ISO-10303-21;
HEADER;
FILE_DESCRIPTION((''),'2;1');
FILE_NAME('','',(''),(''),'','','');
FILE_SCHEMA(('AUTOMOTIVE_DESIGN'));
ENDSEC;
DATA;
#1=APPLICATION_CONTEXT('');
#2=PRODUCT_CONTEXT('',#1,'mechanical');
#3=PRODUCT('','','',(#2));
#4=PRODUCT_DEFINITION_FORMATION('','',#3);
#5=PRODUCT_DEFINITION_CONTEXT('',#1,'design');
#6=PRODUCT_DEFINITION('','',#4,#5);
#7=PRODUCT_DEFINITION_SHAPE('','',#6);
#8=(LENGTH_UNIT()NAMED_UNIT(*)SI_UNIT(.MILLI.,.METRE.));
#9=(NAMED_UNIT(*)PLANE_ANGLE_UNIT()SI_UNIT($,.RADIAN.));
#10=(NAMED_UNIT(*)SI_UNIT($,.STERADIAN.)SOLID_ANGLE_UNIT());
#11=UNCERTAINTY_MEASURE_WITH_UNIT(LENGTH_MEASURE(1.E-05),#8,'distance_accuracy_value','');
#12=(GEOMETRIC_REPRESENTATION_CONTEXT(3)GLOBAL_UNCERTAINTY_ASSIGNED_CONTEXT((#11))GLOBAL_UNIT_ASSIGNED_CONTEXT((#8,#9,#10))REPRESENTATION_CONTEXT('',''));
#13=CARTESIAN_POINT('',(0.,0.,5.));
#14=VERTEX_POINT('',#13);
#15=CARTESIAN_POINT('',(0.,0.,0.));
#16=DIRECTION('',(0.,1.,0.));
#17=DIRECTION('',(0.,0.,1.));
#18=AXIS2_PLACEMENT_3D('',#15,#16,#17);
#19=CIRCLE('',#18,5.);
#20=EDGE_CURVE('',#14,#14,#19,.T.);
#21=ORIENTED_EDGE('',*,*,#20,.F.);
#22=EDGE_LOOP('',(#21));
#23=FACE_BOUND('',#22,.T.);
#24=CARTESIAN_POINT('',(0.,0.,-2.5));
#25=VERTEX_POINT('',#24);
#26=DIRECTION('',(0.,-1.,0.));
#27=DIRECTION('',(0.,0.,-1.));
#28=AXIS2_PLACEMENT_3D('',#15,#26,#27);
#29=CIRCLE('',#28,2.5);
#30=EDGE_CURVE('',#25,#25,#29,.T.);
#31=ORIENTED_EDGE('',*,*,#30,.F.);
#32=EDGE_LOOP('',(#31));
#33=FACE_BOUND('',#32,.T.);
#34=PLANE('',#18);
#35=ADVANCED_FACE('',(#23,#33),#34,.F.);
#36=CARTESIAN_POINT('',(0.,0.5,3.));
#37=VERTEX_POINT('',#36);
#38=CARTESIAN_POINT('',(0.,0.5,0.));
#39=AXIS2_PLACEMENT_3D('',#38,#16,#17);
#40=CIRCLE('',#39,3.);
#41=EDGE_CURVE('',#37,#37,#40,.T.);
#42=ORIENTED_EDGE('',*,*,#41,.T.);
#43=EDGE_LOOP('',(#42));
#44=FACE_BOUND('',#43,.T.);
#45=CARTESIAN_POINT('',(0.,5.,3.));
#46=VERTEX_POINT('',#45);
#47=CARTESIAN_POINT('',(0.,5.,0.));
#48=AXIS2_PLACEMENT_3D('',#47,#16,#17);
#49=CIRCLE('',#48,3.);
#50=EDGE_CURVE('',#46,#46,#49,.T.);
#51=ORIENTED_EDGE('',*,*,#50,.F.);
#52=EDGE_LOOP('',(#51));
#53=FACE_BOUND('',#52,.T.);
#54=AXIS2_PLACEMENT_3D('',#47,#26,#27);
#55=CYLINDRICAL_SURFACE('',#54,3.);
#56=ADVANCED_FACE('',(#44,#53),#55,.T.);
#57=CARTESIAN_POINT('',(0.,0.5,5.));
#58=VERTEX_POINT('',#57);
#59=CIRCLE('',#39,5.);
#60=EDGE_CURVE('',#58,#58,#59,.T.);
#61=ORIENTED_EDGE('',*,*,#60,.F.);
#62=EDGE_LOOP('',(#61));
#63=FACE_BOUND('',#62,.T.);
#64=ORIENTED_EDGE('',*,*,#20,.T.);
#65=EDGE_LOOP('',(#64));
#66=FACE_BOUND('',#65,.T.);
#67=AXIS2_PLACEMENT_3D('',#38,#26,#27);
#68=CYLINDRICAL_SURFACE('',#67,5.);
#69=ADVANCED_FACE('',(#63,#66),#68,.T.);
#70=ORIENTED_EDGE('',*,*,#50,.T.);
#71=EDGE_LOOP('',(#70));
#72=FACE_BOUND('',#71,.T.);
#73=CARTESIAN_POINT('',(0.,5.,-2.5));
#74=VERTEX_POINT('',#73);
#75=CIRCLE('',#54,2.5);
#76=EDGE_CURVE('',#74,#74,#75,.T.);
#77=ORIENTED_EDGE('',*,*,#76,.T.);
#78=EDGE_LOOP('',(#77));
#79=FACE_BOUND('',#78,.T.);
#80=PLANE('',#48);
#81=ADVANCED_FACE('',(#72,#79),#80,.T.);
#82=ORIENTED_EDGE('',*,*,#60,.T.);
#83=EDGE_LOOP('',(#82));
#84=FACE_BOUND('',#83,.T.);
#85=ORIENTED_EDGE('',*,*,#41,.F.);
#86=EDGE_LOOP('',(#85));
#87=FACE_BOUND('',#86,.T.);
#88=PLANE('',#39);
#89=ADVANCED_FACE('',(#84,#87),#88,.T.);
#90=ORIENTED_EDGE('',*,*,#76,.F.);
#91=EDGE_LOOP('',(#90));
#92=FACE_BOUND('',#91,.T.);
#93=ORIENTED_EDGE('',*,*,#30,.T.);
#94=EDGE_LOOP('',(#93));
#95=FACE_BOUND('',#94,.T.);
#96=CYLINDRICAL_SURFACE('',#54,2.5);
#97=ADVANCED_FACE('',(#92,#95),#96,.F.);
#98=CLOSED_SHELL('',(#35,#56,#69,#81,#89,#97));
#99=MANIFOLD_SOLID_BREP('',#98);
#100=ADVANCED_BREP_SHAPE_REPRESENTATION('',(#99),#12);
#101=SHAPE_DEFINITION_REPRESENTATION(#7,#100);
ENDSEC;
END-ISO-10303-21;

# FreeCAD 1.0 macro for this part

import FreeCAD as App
import Part
import Sketcher

V = App.Vector
Q = App.Units.Quantity

doc = App.newDocument("Part")
body = doc.addObject("PartDesign::Body", "Body")

# Sketch on XZ plane
sketch1 = body.newObject("Sketcher::SketchObject", "Sketch")
sketch1.AttachmentSupport = (doc.getObject("XZ_Plane"), [""])
sketch1.MapMode = "FlatFace"
sketch1.addGeometry(Part.Circle(V(0, 0, 0), V(0, 0, 1), 5), False)
sketch1.addConstraint([
    Sketcher.Constraint("Coincident", 0, 3, -1, 1),
    Sketcher.Constraint("Diameter", 0, Q("10 mm")),
])
pad1 = body.newObject("PartDesign::Pad", "Pad")
pad1.Profile = sketch1
pad1.Length = 0.5
pad1.Reversed = True

# Sketch on XZ plane
sketch2 = body.newObject("Sketcher::SketchObject", "Sketch001")
sketch2.AttachmentSupport = (doc.getObject("XZ_Plane"), [""])
sketch2.MapMode = "FlatFace"
sketch2.AttachmentOffset = App.Placement(V(0, 0, -0.5), App.Rotation())
sketch2.addGeometry(Part.Circle(V(0, 0, 0), V(0, 0, 1), 3), False)
sketch2.addConstraint([
    Sketcher.Constraint("Coincident", 0, 3, -1, 1),
    Sketcher.Constraint("Diameter", 0, Q("6 mm")),
])
pad2 = body.newObject("PartDesign::Pad", "Pad001")
pad2.Profile = sketch2
pad2.Length = 4.5
pad2.Reversed = True

# Sketch on XZ plane
sketch3 = body.newObject("Sketcher::SketchObject", "Sketch002")
sketch3.AttachmentSupport = (doc.getObject("XZ_Plane"), [""])
sketch3.MapMode = "FlatFace"
sketch3.addGeometry(Part.Circle(V(0, 0, 0), V(0, 0, 1), 2.5), False)
sketch3.addConstraint([
    Sketcher.Constraint("Coincident", 0, 3, -1, 1),
    Sketcher.Constraint("Diameter", 0, Q("5 mm")),
])
pocket1 = body.newObject("PartDesign::Pocket", "Pocket")
pocket1.Profile = sketch3
pocket1.Type = "ThroughAll"

doc.recompute()
